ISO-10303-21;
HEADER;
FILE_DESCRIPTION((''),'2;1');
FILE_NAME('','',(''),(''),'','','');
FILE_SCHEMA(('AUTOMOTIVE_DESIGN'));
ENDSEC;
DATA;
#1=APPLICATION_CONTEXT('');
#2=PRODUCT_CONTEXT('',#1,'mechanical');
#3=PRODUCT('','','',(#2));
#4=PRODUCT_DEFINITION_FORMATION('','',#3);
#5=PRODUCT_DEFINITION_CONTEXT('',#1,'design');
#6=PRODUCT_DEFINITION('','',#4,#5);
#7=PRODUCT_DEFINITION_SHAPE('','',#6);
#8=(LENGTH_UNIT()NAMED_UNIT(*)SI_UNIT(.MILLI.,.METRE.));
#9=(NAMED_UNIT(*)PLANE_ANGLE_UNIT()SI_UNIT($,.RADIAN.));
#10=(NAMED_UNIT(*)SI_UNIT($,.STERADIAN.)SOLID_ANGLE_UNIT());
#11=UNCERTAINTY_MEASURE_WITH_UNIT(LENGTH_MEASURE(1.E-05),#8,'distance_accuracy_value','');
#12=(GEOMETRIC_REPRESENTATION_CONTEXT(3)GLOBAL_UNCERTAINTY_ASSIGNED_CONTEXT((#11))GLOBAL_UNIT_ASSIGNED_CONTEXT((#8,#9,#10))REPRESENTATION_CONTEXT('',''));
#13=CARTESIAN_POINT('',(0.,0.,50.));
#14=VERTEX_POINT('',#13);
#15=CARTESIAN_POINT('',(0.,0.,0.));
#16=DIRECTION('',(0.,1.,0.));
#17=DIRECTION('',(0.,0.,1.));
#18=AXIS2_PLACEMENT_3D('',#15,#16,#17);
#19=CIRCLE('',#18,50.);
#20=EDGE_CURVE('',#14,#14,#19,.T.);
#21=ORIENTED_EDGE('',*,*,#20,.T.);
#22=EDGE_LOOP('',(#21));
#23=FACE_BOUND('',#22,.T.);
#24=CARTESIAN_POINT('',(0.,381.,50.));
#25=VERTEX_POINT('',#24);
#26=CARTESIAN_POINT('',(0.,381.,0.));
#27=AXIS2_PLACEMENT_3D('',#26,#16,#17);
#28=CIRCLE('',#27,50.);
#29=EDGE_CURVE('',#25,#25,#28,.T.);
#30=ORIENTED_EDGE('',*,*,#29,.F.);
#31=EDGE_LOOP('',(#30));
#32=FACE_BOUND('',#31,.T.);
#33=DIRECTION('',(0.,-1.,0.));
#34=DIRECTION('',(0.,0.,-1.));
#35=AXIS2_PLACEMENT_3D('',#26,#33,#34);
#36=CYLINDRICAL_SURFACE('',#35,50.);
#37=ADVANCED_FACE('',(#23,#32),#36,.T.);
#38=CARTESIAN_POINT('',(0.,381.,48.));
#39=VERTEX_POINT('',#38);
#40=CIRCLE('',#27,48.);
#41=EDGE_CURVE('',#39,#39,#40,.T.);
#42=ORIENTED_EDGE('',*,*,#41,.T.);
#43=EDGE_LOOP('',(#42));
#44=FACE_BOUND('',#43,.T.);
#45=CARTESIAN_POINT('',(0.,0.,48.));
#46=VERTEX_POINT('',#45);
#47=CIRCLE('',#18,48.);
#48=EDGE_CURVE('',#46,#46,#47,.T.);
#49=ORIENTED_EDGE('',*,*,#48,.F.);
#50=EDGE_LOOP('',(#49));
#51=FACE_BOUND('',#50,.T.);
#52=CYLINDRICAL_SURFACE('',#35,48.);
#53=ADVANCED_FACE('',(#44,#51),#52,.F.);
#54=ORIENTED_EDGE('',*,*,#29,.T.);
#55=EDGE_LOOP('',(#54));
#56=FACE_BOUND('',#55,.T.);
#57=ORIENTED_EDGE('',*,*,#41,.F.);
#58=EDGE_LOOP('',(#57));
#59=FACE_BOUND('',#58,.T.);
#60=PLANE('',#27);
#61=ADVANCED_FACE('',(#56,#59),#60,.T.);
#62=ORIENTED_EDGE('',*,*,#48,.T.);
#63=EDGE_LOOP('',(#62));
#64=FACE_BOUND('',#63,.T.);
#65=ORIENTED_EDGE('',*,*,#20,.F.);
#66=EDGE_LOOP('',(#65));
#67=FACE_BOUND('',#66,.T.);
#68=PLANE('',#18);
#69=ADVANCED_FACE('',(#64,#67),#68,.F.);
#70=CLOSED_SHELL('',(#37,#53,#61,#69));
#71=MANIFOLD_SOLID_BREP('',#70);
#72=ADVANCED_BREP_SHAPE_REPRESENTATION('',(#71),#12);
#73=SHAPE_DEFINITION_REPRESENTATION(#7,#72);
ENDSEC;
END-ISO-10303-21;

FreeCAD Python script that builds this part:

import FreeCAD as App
import Part
import Sketcher
from FreeCAD import Vector

doc = App.newDocument("Part")
body = doc.addObject("PartDesign::Body", "Body")

sketch1 = body.newObject("Sketcher::SketchObject", "Sketch")
sketch1.AttachmentSupport = (doc.getObject("XZ_Plane"), [""])
sketch1.MapMode = "FlatFace"
sketch1.addGeometry(Part.Circle(Vector(0, 0, 0), Vector(0, 0, 1), 50), False)
sketch1.addGeometry(Part.Circle(Vector(0, 0, 0), Vector(0, 0, 1), 48), False)
sketch1.addConstraint(Sketcher.Constraint("Coincident", 0, 3, -1, 1))
sketch1.addConstraint(Sketcher.Constraint("Coincident", 1, 3, -1, 1))
sketch1.addConstraint(Sketcher.Constraint("Diameter", 0, 100.0))
sketch1.addConstraint(Sketcher.Constraint("Diameter", 1, 96.0))
pad1 = body.newObject("PartDesign::Pad", "Pad")
pad1.Profile = sketch1
pad1.Length = 381
pad1.Reversed = True

doc.recompute()
